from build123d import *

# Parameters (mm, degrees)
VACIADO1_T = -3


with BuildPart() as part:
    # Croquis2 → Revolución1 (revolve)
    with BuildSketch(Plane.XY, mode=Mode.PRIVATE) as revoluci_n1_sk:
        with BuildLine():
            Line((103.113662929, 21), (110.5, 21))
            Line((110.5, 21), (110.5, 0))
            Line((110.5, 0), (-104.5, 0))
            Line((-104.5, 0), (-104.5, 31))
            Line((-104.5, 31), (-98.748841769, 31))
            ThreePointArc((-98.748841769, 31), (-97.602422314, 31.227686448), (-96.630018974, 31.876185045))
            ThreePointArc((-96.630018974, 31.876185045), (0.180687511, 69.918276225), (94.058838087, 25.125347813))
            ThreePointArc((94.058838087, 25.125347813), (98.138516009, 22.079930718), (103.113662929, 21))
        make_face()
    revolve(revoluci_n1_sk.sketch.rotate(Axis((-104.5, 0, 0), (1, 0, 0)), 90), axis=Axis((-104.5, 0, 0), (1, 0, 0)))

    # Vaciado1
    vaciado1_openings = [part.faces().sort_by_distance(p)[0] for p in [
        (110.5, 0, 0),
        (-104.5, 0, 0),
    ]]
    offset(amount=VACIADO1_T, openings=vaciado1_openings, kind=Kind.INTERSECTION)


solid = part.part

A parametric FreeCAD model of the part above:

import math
import FreeCAD as App
import Part
import Sketcher

V = App.Vector


def faces_at(feature, points):
    """Names of the faces that lie closest to the given points."""
    faces = feature.Shape.Faces
    near = lambda p: min(range(len(faces)), key=lambda i: faces[i].distToShape(Part.Vertex(*p))[0])
    return sorted({f"Face{near(p) + 1}" for p in points})

doc = App.newDocument("Part")
params = doc.addObject("Spreadsheet::Sheet", "Params")
for row, (alias, value) in enumerate([
    ("sketch1_radius", "12 mm"),
    ("sketch1_radius2", "3 mm"),
    ("sketch1_width", "215 mm"),
    ("sketch1_height", "31 mm"),
    ("sketch1_height2", "21 mm"),
    ("revolution_angle", "360 deg"),
    ("thickness_wall", "3 mm"),
], start=1):
    params.set(f"A{row}", alias)
    params.set(f"B{row}", "=" + value)
    params.setAlias(f"B{row}", alias)

body = doc.addObject("PartDesign::Body", "Body")

# Sketch on XY plane
sketch1 = doc.addObject("Sketcher::SketchObject", "Sketch")
body.addObject(sketch1)
sketch1.AttachmentSupport = (doc.XY_Plane, [""])
sketch1.MapMode = "FlatFace"
sketch1.addGeometry(Part.LineSegment(V(110.5, 21, 0), V(103.113663, 21, 0)), False)
sketch1.addGeometry(Part.ArcOfCircle(Part.Circle(V(103.113663, 33, 0), V(0, 0, 1), 12), math.radians(-138.987701), math.radians(-90)), False)
sketch1.addGeometry(Part.ArcOfCircle(Part.Circle(V(-4.437612, -60.533436, 0), V(0, 0, 1), 130.533436), math.radians(41.012299), math.radians(134.932582)), False)
sketch1.addGeometry(Part.ArcOfCircle(Part.Circle(V(-98.748842, 34, 0), V(0, 0, 1), 3), math.radians(-90), math.radians(-45.067418)), False)
sketch1.addGeometry(Part.LineSegment(V(-98.748842, 31, 0), V(-104.5, 31, 0)), False)
sketch1.addGeometry(Part.LineSegment(V(-104.5, 31, 0), V(-104.5, 0, 0)), False)
sketch1.addGeometry(Part.LineSegment(V(-104.5, 0, 0), V(110.5, 0, 0)), False)
sketch1.addGeometry(Part.LineSegment(V(110.5, 0, 0), V(110.5, 21, 0)), False)
sketch1.addConstraint(Sketcher.Constraint("Tangent", 0, 2, 1, 2))
sketch1.addConstraint(Sketcher.Constraint("Tangent", 1, 1, 2, 1))
sketch1.addConstraint(Sketcher.Constraint("Tangent", 2, 2, 3, 2))
sketch1.addConstraint(Sketcher.Constraint("Tangent", 3, 1, 4, 1))
sketch1.addConstraint(Sketcher.Constraint("Coincident", 4, 2, 5, 1))
sketch1.addConstraint(Sketcher.Constraint("Coincident", 5, 2, 6, 1))
sketch1.addConstraint(Sketcher.Constraint("Coincident", 6, 2, 7, 1))
sketch1.addConstraint(Sketcher.Constraint("Coincident", 7, 2, 0, 1))
sketch1.addConstraint(Sketcher.Constraint("Horizontal", 0))
sketch1.addConstraint(Sketcher.Constraint("Horizontal", 4))
sketch1.addConstraint(Sketcher.Constraint("Vertical", 5))
sketch1.addConstraint(Sketcher.Constraint("Horizontal", 6))
sketch1.addConstraint(Sketcher.Constraint("Vertical", 7))
sketch1.addConstraint(Sketcher.Constraint("PointOnObject", 5, 2, -1))
sketch1.addConstraint(Sketcher.Constraint("Radius", 1, 12.0))
sketch1.addConstraint(Sketcher.Constraint("Radius", 3, 3.0))
sketch1.addConstraint(Sketcher.Constraint("DistanceX", 6, 1, 6, 2, 215.0))
sketch1.addConstraint(Sketcher.Constraint("DistanceY", 5, 2, 5, 1, 31.0))
sketch1.addConstraint(Sketcher.Constraint("DistanceY", 7, 1, 7, 2, 21.0))
sketch1.addConstraint(Sketcher.Constraint("DistanceX", 4, 2, -1, 1, 104.5))
sketch1.addConstraint(Sketcher.Constraint("Radius", 2, 130.533436))
sketch1.addConstraint(Sketcher.Constraint("DistanceX", 4, 2, 4, 1, 5.751158))
sketch1.addConstraint(Sketcher.Constraint("DistanceX", 0, 2, 0, 1, 7.386337))
sketch1.setExpression("Constraints[14]", "Params.sketch1_radius")
sketch1.setExpression("Constraints[15]", "Params.sketch1_radius2")
sketch1.setExpression("Constraints[16]", "Params.sketch1_width")
sketch1.setExpression("Constraints[17]", "Params.sketch1_height")
sketch1.setExpression("Constraints[18]", "Params.sketch1_height2")
revolution = doc.addObject("PartDesign::Revolution", "Revolution")
body.addObject(revolution)
revolution.Profile = sketch1
revolution.ReferenceAxis = (sketch1, ["H_Axis"])
revolution.setExpression("Angle", "Params.revolution_angle")
doc.recompute()

thickness = doc.addObject("PartDesign::Thickness", "Thickness")
body.addObject(thickness)
thickness.Base = (revolution, faces_at(revolution, [(110.5, 0, 0), (-104.5, 0, 0)]))
thickness.setExpression("Value", "Params.thickness_wall")
thickness.Reversed = True
thickness.Join = "Intersection"

doc.recompute()
